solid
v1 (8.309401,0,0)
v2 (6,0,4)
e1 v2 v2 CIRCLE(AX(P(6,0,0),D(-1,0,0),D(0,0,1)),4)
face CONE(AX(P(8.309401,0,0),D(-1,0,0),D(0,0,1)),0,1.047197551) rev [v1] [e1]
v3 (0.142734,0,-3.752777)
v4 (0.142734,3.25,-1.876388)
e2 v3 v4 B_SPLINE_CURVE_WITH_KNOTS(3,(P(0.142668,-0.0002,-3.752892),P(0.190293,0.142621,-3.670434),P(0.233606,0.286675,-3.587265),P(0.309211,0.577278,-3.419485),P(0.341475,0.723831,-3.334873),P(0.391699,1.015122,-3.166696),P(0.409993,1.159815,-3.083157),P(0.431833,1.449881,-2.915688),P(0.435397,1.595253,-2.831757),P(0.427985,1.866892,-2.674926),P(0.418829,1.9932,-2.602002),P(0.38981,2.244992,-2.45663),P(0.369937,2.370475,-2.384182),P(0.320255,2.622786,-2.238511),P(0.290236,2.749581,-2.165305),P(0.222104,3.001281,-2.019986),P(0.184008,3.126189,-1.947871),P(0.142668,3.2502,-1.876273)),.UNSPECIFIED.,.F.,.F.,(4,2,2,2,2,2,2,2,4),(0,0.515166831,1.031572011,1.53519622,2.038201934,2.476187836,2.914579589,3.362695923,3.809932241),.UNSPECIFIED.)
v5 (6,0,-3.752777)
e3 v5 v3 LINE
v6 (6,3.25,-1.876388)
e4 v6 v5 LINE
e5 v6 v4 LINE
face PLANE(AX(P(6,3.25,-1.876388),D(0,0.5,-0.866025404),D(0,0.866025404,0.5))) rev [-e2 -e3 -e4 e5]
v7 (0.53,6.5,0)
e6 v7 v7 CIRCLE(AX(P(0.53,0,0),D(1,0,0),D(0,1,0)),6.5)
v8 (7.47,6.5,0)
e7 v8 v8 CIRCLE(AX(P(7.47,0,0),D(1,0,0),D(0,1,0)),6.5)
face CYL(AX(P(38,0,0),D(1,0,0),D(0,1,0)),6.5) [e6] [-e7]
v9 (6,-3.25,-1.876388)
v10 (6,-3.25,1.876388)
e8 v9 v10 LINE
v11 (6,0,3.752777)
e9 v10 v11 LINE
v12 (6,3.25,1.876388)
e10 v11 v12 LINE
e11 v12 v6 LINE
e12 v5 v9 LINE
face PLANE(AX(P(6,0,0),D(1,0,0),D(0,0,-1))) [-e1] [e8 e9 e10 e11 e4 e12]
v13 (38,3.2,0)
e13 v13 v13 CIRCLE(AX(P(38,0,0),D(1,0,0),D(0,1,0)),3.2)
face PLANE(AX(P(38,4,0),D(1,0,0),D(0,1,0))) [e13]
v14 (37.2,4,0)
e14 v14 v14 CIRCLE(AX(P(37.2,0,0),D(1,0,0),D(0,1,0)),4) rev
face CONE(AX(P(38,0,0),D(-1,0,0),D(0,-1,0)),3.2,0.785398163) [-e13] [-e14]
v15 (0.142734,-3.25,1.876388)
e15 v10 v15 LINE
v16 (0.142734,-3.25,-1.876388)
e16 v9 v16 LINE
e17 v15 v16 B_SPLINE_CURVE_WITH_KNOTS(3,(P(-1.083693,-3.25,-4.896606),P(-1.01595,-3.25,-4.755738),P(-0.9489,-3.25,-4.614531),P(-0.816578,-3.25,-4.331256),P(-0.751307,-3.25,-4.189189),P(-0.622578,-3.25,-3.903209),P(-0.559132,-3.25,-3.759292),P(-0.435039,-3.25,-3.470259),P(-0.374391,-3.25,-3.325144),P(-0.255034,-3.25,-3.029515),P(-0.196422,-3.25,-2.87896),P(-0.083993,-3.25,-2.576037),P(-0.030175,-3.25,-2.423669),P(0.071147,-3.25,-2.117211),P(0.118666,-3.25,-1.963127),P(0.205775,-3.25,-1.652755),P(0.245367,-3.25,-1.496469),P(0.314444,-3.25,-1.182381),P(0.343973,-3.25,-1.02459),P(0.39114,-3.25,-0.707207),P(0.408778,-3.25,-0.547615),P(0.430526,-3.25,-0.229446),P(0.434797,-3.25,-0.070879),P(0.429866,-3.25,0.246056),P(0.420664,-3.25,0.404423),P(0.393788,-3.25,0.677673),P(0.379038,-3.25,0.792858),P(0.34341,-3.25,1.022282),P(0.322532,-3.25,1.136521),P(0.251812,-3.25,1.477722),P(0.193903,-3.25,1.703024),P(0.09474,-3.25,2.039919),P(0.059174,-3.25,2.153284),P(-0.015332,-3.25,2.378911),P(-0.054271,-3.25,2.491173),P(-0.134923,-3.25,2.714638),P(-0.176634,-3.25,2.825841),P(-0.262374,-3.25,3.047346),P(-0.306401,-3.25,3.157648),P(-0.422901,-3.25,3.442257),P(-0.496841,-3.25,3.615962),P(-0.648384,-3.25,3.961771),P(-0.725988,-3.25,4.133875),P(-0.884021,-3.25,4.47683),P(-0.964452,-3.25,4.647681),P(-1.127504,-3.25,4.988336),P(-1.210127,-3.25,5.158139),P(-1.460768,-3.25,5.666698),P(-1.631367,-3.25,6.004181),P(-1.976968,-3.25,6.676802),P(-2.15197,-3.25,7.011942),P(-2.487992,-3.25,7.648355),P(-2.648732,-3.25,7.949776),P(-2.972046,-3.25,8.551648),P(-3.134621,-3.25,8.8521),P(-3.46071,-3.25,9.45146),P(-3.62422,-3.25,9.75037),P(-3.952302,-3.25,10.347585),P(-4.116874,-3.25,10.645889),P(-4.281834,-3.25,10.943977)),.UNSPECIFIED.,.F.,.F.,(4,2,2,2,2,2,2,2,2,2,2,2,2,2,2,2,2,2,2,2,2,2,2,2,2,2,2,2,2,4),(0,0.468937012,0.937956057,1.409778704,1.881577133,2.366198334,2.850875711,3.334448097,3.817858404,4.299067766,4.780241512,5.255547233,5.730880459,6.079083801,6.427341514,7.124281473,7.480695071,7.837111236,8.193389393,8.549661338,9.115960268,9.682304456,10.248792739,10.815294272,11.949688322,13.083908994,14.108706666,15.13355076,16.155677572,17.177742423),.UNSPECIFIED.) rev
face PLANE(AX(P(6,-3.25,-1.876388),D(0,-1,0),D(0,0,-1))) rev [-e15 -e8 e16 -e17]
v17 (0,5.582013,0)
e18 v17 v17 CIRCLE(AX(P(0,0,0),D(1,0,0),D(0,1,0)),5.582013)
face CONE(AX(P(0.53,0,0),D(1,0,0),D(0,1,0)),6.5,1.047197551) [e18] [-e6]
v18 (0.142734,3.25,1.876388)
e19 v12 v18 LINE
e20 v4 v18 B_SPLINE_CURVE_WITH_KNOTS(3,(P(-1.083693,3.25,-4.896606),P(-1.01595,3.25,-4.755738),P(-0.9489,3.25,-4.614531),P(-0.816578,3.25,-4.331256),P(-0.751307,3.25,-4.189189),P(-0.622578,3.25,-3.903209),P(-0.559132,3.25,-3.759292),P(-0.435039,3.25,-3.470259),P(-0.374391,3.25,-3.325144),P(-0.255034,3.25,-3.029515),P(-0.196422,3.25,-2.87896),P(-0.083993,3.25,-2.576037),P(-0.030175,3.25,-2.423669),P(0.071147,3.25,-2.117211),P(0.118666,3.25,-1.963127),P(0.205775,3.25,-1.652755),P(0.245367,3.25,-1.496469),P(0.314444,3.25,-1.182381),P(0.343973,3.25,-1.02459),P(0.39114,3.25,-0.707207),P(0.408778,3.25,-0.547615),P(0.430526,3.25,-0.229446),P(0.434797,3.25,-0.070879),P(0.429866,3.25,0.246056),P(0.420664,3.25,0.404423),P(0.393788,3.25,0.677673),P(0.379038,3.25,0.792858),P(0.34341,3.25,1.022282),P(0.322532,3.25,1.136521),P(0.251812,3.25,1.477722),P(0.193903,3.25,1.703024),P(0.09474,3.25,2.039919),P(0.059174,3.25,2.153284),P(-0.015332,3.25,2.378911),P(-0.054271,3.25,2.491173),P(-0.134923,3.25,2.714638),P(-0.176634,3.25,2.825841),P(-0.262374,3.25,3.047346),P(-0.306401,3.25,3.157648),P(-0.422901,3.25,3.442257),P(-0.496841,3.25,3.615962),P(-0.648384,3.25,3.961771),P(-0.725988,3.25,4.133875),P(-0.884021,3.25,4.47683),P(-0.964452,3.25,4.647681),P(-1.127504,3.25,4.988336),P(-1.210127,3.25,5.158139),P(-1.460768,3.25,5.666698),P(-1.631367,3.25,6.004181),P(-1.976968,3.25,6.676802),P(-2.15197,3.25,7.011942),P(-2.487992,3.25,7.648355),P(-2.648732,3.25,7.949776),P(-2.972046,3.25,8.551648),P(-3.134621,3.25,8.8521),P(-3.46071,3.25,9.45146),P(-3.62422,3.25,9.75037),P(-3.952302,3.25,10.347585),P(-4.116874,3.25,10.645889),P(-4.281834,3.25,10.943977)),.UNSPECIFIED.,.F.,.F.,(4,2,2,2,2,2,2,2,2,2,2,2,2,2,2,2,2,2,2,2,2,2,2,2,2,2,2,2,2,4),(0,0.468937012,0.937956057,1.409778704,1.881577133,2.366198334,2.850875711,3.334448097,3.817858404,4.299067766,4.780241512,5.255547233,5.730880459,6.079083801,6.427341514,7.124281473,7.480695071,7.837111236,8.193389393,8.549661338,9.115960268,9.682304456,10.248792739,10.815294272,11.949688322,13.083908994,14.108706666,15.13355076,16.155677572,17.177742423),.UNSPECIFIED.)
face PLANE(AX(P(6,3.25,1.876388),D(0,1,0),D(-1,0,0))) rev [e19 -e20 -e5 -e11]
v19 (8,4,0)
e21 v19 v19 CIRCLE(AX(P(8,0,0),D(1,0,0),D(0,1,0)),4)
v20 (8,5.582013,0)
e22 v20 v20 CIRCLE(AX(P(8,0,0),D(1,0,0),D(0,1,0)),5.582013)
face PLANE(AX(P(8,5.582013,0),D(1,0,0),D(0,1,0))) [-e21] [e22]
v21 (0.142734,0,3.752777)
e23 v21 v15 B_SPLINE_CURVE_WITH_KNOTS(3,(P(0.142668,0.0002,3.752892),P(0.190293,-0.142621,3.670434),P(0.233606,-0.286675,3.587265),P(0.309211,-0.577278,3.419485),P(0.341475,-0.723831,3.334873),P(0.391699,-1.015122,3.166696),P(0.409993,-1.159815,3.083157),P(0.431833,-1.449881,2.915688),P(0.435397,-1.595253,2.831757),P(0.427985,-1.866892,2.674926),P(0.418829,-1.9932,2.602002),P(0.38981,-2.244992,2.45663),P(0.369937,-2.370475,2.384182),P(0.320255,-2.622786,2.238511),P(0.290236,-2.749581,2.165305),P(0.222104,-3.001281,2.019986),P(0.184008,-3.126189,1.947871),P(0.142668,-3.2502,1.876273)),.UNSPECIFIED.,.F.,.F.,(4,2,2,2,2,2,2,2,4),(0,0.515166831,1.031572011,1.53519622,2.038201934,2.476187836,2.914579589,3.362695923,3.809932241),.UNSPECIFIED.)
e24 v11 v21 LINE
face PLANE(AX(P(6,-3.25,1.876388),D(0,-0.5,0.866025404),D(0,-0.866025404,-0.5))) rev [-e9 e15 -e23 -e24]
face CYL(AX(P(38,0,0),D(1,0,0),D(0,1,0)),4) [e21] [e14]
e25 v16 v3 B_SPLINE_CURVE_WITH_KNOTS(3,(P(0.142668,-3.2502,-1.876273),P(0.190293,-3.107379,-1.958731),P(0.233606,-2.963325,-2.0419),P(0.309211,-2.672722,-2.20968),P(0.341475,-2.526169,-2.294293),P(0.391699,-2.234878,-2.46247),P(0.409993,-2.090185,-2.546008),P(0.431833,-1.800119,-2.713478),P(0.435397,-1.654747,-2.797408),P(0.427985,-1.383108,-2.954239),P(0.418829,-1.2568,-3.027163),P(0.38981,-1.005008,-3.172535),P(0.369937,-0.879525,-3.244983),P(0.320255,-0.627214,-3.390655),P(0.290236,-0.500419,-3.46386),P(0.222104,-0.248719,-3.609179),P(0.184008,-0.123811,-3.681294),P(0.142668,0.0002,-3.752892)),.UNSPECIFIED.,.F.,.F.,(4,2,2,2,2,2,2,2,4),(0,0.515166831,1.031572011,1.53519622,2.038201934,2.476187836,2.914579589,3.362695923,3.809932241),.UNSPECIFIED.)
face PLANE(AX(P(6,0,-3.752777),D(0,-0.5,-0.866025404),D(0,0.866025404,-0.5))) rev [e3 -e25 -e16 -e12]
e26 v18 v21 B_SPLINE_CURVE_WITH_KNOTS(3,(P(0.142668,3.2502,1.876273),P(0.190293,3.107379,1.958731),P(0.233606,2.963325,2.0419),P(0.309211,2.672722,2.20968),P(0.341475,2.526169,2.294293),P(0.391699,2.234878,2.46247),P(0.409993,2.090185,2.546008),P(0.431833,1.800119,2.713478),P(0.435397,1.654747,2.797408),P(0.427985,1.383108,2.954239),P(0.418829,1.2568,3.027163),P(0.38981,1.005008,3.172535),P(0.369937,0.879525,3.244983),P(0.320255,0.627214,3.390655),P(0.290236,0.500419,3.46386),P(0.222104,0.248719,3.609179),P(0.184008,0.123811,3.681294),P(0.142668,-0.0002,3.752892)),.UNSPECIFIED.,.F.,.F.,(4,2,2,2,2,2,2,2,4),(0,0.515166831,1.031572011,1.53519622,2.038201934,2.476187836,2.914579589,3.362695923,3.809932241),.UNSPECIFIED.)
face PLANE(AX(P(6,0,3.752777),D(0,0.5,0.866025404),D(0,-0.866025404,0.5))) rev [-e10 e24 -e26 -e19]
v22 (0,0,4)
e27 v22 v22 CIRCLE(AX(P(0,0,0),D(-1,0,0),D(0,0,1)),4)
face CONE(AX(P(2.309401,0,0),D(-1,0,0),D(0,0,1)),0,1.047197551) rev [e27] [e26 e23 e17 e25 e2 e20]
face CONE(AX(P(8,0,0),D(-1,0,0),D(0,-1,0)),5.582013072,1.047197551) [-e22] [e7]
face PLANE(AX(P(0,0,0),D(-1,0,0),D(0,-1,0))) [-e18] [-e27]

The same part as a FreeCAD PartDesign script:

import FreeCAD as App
import Part
import Sketcher
from FreeCAD import Vector
Q = App.Units.Quantity


def edges_at(feature, points):
    """Names of the edges that pass closest to the given points."""
    edges = feature.Shape.Edges
    near = lambda p: min(range(len(edges)), key=lambda i: edges[i].distToShape(Part.Vertex(*p))[0])
    return sorted({f"Edge{near(p) + 1}" for p in points})

doc = App.newDocument("Part")
params = doc.addObject("Spreadsheet::Sheet", "Params")
for row, (alias, value) in enumerate([
    ("sketch1_width", "38 mm"),
    ("sketch1_width2", "30 mm"),
    ("sketch1_height", "4 mm"),
    ("sketch1_width3", "6.94 mm"),
    ("revolution_angle", "360 deg"),
    ("chamfer_size", "0.8 mm"),
    ("pocket1_length", "6 mm"),
    ("sketch3_height", "4 mm"),
    ("groove_angle", "360 deg"),
], start=1):
    params.set(f"A{row}", alias)
    params.set(f"B{row}", "=" + value)
    params.setAlias(f"B{row}", alias)

body = doc.addObject("PartDesign::Body", "Body")

sketch1 = body.newObject("Sketcher::SketchObject", "Sketch")
sketch1.AttachmentSupport = (doc.getObject("XY_Plane"), [""])
sketch1.MapMode = "FlatFace"
sketch1.addGeometry(Part.LineSegment(Vector(0, 5.6, 0), Vector(0, 0, 0)), False)
sketch1.addGeometry(Part.LineSegment(Vector(0, 0, 0), Vector(38, 0, 0)), False)
sketch1.addGeometry(Part.LineSegment(Vector(38, 0, 0), Vector(38, 4, 0)), False)
sketch1.addGeometry(Part.LineSegment(Vector(38, 4, 0), Vector(8, 4, 0)), False)
sketch1.addGeometry(Part.LineSegment(Vector(8, 4, 0), Vector(8, 5.6, 0)), False)
sketch1.addGeometry(Part.LineSegment(Vector(8, 5.6, 0), Vector(7.5, 6.5, 0)), False)
sketch1.addGeometry(Part.LineSegment(Vector(7.5, 6.5, 0), Vector(0.5, 6.5, 0)), False)
sketch1.addGeometry(Part.LineSegment(Vector(0.5, 6.5, 0), Vector(0, 5.6, 0)), False)
sketch1.addConstraint(Sketcher.Constraint("Coincident", 0, 2, 1, 1))
sketch1.addConstraint(Sketcher.Constraint("Coincident", 1, 2, 2, 1))
sketch1.addConstraint(Sketcher.Constraint("Coincident", 2, 2, 3, 1))
sketch1.addConstraint(Sketcher.Constraint("Coincident", 3, 2, 4, 1))
sketch1.addConstraint(Sketcher.Constraint("Coincident", 4, 2, 5, 1))
sketch1.addConstraint(Sketcher.Constraint("Coincident", 5, 2, 6, 1))
sketch1.addConstraint(Sketcher.Constraint("Coincident", 6, 2, 7, 1))
sketch1.addConstraint(Sketcher.Constraint("Coincident", 7, 2, 0, 1))
sketch1.addConstraint(Sketcher.Constraint("Vertical", 0))
sketch1.addConstraint(Sketcher.Constraint("Horizontal", 1))
sketch1.addConstraint(Sketcher.Constraint("Vertical", 2))
sketch1.addConstraint(Sketcher.Constraint("Horizontal", 3))
sketch1.addConstraint(Sketcher.Constraint("Vertical", 4))
sketch1.addConstraint(Sketcher.Constraint("Horizontal", 6))
sketch1.addConstraint(Sketcher.Constraint("Coincident", 0, 2, -1, 1))
sketch1.addConstraint(Sketcher.Constraint("Horizontal", 4, 2, 7, 2))
sketch1.addConstraint(Sketcher.Constraint("Equal", 5, 7))
sketch1.addConstraint(Sketcher.Constraint("DistanceX", 1, 1, 1, 2, Q("38 mm")))
sketch1.addConstraint(Sketcher.Constraint("DistanceX", 3, 2, 3, 1, Q("30 mm")))
sketch1.addConstraint(Sketcher.Constraint("DistanceY", 2, 1, 2, 2, Q("4 mm")))
sketch1.addConstraint(Sketcher.Constraint("Angle", 5, Q("120 deg")))
sketch1.addConstraint(Sketcher.Constraint("DistanceX", 6, 2, 6, 1, Q("6.94 mm")))
sketch1.addConstraint(Sketcher.Constraint("DistanceY", -1, 1, 5, 2, Q("6.5 mm")))
sketch1.setExpression("Constraints[17]", "Params.sketch1_width")
sketch1.setExpression("Constraints[18]", "Params.sketch1_width2")
sketch1.setExpression("Constraints[19]", "Params.sketch1_height")
sketch1.setExpression("Constraints[21]", "Params.sketch1_width3")
revolution = body.newObject("PartDesign::Revolution", "Revolution")
revolution.Profile = sketch1
revolution.ReferenceAxis = (sketch1, ["H_Axis"])
revolution.setExpression("Angle", "Params.revolution_angle")
doc.recompute()

chamfer = body.newObject("PartDesign::Chamfer", "Chamfer")
chamfer.Base = (revolution, edges_at(revolution, [(38, -4, 0)]))
chamfer.setExpression("Size", "Params.chamfer_size")

sketch2 = body.newObject("Sketcher::SketchObject", "Sketch001")
sketch2.AttachmentSupport = (doc.getObject("YZ_Plane"), [""])
sketch2.MapMode = "FlatFace"
sketch2.addGeometry(Part.LineSegment(Vector(0, 3.8, 0), Vector(3.2, 1.9, 0)), False)
sketch2.addGeometry(Part.LineSegment(Vector(3.2, 1.9, 0), Vector(3.2, -1.9, 0)), False)
sketch2.addGeometry(Part.LineSegment(Vector(3.2, -1.9, 0), Vector(0, -3.8, 0)), False)
sketch2.addGeometry(Part.LineSegment(Vector(0, -3.8, 0), Vector(-3.2, -1.9, 0)), False)
sketch2.addGeometry(Part.LineSegment(Vector(-3.2, -1.9, 0), Vector(-3.2, 1.9, 0)), False)
sketch2.addGeometry(Part.LineSegment(Vector(-3.2, 1.9, 0), Vector(0, 3.8, 0)), False)
sketch2.addConstraint(Sketcher.Constraint("Coincident", 0, 2, 1, 1))
sketch2.addConstraint(Sketcher.Constraint("Coincident", 1, 2, 2, 1))
sketch2.addConstraint(Sketcher.Constraint("Coincident", 2, 2, 3, 1))
sketch2.addConstraint(Sketcher.Constraint("Coincident", 3, 2, 4, 1))
sketch2.addConstraint(Sketcher.Constraint("Coincident", 4, 2, 5, 1))
sketch2.addConstraint(Sketcher.Constraint("Coincident", 5, 2, 0, 1))
sketch2.addConstraint(Sketcher.Constraint("Vertical", 1))
sketch2.addConstraint(Sketcher.Constraint("Vertical", 4))
sketch2.addConstraint(Sketcher.Constraint("Symmetric", 0, 2, 3, 2, -1, 1))
sketch2.addConstraint(Sketcher.Constraint("Symmetric", 2, 2, 5, 2, -1, 1))
sketch2.addConstraint(Sketcher.Constraint("PointOnObject", 2, 2, -2))
sketch2.addConstraint(Sketcher.Constraint("Parallel", 2, 5))
sketch2.addConstraint(Sketcher.Constraint("Horizontal", 1, 2, 3, 2))
sketch2.addConstraint(Sketcher.Constraint("Angle", 0, Q("-30 deg")))
sketch2.addConstraint(Sketcher.Constraint("DistanceX", 3, 2, 1, 2, Q("6.5 mm")))
sketch2.addConstraint(Sketcher.Constraint("DistanceY", 1, 2, 1, 1, Q("3.752777 mm")))
pocket1 = body.newObject("PartDesign::Pocket", "Pocket")
pocket1.Profile = sketch2
pocket1.setExpression("Length", "Params.pocket1_length")
pocket1.Reversed = True

sketch3 = body.newObject("Sketcher::SketchObject", "Sketch002")
sketch3.AttachmentSupport = (doc.getObject("XY_Plane"), [""])
sketch3.MapMode = "FlatFace"
sketch3.addGeometry(Part.LineSegment(Vector(0, 4, 0), Vector(0, 0, 0)), False)
sketch3.addGeometry(Part.LineSegment(Vector(0, 0, 0), Vector(2.3, 0, 0)), False)
sketch3.addGeometry(Part.LineSegment(Vector(2.3, 0, 0), Vector(0, 4, 0)), False)
sketch3.addGeometry(Part.LineSegment(Vector(6, 4, 0), Vector(6, 0, 0)), False)
sketch3.addGeometry(Part.LineSegment(Vector(6, 0, 0), Vector(8.3, 0, 0)), False)
sketch3.addGeometry(Part.LineSegment(Vector(8.3, 0, 0), Vector(6, 4, 0)), False)
sketch3.addConstraint(Sketcher.Constraint("Coincident", 0, 2, 1, 1))
sketch3.addConstraint(Sketcher.Constraint("Coincident", 1, 2, 2, 1))
sketch3.addConstraint(Sketcher.Constraint("Coincident", 2, 2, 0, 1))
sketch3.addConstraint(Sketcher.Constraint("Coincident", 3, 2, 4, 1))
sketch3.addConstraint(Sketcher.Constraint("Coincident", 4, 2, 5, 1))
sketch3.addConstraint(Sketcher.Constraint("Coincident", 5, 2, 3, 1))
sketch3.addConstraint(Sketcher.Constraint("Vertical", 0))
sketch3.addConstraint(Sketcher.Constraint("Horizontal", 1))
sketch3.addConstraint(Sketcher.Constraint("Vertical", 3))
sketch3.addConstraint(Sketcher.Constraint("Horizontal", 4))
sketch3.addConstraint(Sketcher.Constraint("Coincident", 0, 2, -1, 1))
sketch3.addConstraint(Sketcher.Constraint("PointOnObject", 3, 2, -1))
sketch3.addConstraint(Sketcher.Constraint("Parallel", 2, 5))
sketch3.addConstraint(Sketcher.Constraint("Horizontal", 2, 2, 5, 2))
sketch3.addConstraint(Sketcher.Constraint("DistanceY", 0, 2, 0, 1, Q("4 mm")))
sketch3.addConstraint(Sketcher.Constraint("Angle", 2, Q("120 deg")))
sketch3.addConstraint(Sketcher.Constraint("DistanceX", -1, 1, 3, 2, Q("6 mm")))
sketch3.setExpression("Constraints[14]", "Params.sketch3_height")
groove = body.newObject("PartDesign::Groove", "Groove")
groove.Profile = sketch3
groove.ReferenceAxis = (sketch3, ["H_Axis"])
groove.setExpression("Angle", "Params.groove_angle")

doc.recompute()
